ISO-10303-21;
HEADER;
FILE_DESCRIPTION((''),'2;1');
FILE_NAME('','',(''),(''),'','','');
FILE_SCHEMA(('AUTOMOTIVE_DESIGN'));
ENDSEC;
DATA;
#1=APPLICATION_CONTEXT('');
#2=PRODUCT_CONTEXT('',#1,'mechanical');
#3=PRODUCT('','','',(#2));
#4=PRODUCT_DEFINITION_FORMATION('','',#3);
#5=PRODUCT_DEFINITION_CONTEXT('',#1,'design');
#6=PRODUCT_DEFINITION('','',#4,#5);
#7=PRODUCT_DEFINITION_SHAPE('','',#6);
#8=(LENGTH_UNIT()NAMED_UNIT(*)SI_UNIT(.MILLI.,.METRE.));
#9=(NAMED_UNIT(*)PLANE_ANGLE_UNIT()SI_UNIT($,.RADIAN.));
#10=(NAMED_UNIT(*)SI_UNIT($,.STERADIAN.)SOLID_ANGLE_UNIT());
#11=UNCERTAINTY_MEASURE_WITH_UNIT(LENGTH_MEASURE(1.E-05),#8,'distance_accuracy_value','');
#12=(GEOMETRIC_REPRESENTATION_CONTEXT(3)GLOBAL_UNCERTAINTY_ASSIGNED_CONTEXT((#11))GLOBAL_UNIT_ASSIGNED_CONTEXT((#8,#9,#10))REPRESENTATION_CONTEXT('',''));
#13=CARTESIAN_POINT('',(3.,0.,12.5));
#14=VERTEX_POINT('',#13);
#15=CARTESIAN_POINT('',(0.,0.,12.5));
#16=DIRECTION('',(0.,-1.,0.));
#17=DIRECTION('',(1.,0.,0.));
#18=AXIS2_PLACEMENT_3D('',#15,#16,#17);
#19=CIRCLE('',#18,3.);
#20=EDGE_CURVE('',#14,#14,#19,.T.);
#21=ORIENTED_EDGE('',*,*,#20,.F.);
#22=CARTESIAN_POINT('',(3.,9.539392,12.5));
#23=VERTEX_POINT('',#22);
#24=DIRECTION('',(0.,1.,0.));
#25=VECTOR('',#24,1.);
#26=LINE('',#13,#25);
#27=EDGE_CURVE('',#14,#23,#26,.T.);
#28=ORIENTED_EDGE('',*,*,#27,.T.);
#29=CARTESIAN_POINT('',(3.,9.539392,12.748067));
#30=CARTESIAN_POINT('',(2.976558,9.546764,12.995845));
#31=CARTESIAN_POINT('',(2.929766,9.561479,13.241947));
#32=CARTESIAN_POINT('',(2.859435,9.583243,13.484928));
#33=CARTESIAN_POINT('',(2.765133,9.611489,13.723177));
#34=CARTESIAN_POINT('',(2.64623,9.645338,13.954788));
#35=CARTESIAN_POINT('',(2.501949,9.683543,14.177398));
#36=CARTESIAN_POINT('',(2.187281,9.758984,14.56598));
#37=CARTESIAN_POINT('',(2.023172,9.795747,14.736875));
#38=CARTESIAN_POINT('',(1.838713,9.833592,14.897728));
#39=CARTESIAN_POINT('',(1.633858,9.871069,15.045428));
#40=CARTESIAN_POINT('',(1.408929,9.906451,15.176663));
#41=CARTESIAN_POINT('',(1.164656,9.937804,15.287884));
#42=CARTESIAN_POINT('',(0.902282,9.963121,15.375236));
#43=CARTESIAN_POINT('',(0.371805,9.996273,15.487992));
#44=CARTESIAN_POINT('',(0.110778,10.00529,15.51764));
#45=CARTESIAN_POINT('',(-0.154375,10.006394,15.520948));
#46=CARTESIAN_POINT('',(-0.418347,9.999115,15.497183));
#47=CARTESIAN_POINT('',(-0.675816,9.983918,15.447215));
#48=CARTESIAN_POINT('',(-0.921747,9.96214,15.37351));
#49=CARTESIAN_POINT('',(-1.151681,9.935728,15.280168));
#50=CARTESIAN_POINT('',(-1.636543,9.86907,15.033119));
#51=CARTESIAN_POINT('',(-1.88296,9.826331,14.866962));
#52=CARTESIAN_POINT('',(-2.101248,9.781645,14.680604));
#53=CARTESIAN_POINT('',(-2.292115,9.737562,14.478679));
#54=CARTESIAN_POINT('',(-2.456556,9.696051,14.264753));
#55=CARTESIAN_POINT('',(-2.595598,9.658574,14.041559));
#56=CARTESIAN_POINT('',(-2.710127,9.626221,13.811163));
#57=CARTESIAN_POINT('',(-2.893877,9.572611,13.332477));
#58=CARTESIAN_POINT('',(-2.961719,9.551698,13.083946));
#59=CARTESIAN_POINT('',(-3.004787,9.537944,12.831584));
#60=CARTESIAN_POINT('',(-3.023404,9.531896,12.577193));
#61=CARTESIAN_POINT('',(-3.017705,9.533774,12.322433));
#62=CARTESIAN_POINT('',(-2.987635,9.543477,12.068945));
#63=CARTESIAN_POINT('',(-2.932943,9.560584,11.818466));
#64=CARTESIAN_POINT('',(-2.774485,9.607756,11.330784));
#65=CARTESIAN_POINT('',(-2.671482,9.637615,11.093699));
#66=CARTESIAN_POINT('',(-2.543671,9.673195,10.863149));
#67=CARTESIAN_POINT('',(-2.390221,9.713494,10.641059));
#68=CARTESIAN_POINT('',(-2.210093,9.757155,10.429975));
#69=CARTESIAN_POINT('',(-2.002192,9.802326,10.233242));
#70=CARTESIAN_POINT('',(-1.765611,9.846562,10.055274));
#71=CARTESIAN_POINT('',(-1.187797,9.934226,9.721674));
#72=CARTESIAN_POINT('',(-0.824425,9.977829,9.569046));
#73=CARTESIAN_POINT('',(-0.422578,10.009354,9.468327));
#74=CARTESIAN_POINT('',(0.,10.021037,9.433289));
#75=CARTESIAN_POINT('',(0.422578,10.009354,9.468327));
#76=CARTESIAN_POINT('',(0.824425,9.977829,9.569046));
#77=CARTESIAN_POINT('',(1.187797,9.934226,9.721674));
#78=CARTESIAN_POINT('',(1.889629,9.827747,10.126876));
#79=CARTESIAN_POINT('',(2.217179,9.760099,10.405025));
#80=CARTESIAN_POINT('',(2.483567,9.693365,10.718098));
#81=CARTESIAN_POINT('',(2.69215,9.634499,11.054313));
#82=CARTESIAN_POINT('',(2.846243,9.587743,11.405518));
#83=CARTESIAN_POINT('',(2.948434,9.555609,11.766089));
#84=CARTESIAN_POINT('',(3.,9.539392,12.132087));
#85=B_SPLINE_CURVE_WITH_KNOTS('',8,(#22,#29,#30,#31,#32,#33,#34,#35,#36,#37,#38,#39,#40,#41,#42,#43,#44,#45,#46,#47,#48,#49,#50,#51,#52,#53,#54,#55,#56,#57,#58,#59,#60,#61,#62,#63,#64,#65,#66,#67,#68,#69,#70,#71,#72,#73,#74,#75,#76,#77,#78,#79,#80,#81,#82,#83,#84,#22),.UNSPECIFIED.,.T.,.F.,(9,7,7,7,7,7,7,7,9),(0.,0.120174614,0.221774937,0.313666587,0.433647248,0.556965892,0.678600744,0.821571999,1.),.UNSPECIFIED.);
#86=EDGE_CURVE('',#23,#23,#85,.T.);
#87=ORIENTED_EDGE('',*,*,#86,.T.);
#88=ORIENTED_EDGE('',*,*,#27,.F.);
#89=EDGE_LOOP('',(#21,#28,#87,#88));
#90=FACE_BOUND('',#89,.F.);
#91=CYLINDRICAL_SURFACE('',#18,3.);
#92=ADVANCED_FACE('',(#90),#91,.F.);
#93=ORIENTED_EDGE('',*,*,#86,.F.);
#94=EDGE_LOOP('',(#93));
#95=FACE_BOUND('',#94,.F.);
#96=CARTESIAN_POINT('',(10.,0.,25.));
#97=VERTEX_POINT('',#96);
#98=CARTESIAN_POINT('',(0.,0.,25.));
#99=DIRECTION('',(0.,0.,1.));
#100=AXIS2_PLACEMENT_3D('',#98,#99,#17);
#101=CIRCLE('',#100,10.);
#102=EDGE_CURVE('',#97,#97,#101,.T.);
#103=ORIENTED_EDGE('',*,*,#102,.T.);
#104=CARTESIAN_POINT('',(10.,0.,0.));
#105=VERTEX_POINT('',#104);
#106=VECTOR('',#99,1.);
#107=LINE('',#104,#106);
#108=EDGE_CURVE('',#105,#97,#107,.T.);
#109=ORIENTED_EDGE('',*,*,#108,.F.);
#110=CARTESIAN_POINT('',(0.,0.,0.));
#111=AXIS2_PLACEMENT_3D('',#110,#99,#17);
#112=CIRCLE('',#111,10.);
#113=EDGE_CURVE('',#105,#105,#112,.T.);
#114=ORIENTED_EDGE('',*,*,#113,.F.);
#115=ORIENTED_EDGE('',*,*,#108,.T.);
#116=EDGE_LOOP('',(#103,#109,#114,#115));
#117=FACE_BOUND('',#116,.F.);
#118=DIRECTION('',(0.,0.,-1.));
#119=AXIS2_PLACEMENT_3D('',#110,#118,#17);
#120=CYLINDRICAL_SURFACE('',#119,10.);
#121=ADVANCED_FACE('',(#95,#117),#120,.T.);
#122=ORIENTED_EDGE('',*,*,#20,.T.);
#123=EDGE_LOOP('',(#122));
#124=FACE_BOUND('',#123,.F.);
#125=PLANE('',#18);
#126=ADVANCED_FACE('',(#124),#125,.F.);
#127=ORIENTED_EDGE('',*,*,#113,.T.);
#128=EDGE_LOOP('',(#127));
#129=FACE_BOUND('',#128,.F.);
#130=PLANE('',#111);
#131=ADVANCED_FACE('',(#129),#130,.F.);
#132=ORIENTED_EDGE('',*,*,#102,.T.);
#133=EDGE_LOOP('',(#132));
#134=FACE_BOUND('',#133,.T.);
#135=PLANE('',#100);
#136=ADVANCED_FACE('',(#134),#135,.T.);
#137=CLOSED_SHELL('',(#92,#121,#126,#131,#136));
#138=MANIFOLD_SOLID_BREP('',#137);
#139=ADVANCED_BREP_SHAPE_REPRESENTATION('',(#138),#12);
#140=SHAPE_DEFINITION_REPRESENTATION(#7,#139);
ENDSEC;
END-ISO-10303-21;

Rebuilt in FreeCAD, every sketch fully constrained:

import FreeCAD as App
import Part
import Sketcher

doc = App.newDocument("Part")
params = doc.addObject("Spreadsheet::Sheet", "Params")
for row, (alias, value) in enumerate([
    ("sketch1_diameter", "20 mm"),
    ("pad1_length", "25 mm"),
    ("sketch2_diameter", "6 mm"),
    ("pocket1_length", "25 mm"),
], start=1):
    params.set(f"A{row}", alias)
    params.set(f"B{row}", "=" + value)
    params.setAlias(f"B{row}", alias)

body = doc.addObject("PartDesign::Body", "Body")

sketch1 = body.newObject("Sketcher::SketchObject", "Sketch")
sketch1.AttachmentSupport = (doc.getObject("XY_Plane"), [""])
sketch1.MapMode = "FlatFace"
sketch1.addGeometry(Part.Circle(App.Vector(0, 0, 0), App.Vector(0, 0, 1), 10), False)
sketch1.addConstraint([
    Sketcher.Constraint("Coincident", 0, 3, -1, 1),
    Sketcher.Constraint("Diameter", 0, 20.0),
])
sketch1.setExpression("Constraints[1]", "Params.sketch1_diameter")
pad1 = body.newObject("PartDesign::Pad", "Pad")
pad1.Profile = sketch1
pad1.setExpression("Length", "Params.pad1_length")

sketch2 = body.newObject("Sketcher::SketchObject", "Sketch001")
sketch2.AttachmentSupport = (doc.getObject("XZ_Plane"), [""])
sketch2.MapMode = "FlatFace"
sketch2.addGeometry(Part.Circle(App.Vector(0, 12.5, 0), App.Vector(0, 0, 1), 3), False)
sketch2.addConstraint([
    Sketcher.Constraint("PointOnObject", 0, 3, -2),
    Sketcher.Constraint("Diameter", 0, 6.0),
    Sketcher.Constraint("DistanceY", -1, 1, 0, 3, 12.5),
])
sketch2.setExpression("Constraints[1]", "Params.sketch2_diameter")
pocket1 = body.newObject("PartDesign::Pocket", "Pocket")
pocket1.Profile = sketch2
pocket1.setExpression("Length", "Params.pocket1_length")

doc.recompute()
